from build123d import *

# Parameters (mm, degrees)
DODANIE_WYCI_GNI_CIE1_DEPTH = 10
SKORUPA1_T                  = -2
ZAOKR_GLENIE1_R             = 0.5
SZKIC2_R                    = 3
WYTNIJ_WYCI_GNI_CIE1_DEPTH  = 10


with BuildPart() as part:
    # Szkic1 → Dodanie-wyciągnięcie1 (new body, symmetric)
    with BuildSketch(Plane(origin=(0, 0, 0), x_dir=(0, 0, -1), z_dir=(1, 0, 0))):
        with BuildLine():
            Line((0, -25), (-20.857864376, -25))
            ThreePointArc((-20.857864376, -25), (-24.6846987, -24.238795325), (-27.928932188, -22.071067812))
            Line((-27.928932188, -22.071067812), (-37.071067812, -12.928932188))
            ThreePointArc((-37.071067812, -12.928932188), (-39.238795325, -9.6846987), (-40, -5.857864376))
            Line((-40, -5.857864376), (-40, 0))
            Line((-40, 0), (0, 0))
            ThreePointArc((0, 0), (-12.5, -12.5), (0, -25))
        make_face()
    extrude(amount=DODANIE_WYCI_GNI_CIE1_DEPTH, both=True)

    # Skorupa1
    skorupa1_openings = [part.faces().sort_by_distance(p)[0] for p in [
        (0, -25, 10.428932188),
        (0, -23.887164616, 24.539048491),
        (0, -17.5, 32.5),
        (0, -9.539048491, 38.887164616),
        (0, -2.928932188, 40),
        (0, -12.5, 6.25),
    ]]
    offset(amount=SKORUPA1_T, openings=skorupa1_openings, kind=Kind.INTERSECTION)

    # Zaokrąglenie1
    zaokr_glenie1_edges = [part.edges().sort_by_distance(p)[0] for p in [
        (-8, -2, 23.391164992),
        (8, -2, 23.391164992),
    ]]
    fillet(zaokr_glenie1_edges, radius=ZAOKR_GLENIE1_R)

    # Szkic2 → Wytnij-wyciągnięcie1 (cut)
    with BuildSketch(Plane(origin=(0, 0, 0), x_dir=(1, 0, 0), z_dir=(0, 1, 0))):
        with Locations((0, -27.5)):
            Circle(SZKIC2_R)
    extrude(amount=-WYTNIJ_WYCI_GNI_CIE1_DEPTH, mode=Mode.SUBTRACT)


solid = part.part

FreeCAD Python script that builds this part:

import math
import FreeCAD as App
import Part
import Sketcher
Q = App.Units.Quantity


def edges_at(feature, points):
    """Names of the edges that pass closest to the given points."""
    edges = feature.Shape.Edges
    near = lambda p: min(range(len(edges)), key=lambda i: edges[i].distToShape(Part.Vertex(*p))[0])
    return sorted({f"Edge{near(p) + 1}" for p in points})


def faces_at(feature, points):
    """Names of the faces that lie closest to the given points."""
    faces = feature.Shape.Faces
    near = lambda p: min(range(len(faces)), key=lambda i: faces[i].distToShape(Part.Vertex(*p))[0])
    return sorted({f"Face{near(p) + 1}" for p in points})

doc = App.newDocument("Part")
body = doc.addObject("PartDesign::Body", "Body")

# Sketch on YZ plane
sketch1 = doc.addObject("Sketcher::SketchObject", "Sketch")
body.addObject(sketch1)
sketch1.AttachmentSupport = (doc.YZ_Plane, [""])
sketch1.MapMode = "FlatFace"
sketch1.addGeometry([
    Part.LineSegment(App.Vector(-25, 21, 0), App.Vector(-25, 0, 0)),  # 0
    Part.ArcOfCircle(Part.Circle(App.Vector(-12, 0, 0), App.Vector(0, 0, 1), 12), math.radians(0), math.radians(180)),  # 1
    Part.LineSegment(App.Vector(0, 0, 0), App.Vector(0, 40, 0)),  # 2
    Part.LineSegment(App.Vector(0, 40, 0), App.Vector(-6, 40, 0)),  # 3
    Part.ArcOfCircle(Part.Circle(App.Vector(-6, 30, 0), App.Vector(0, 0, 1), 10), math.radians(90), math.radians(135)),  # 4
    Part.LineSegment(App.Vector(-13, 37, 0), App.Vector(-22, 28, 0)),  # 5
    Part.ArcOfCircle(Part.Circle(App.Vector(-15, 21, 0), App.Vector(0, 0, 1), 10), math.radians(135), math.radians(180)),  # 6
], False)
sketch1.addConstraint([
    Sketcher.Constraint("Tangent", 0, 2, 1, 2),
    Sketcher.Constraint("Tangent", 1, 1, 2, 1),
    Sketcher.Constraint("Coincident", 2, 2, 3, 1),
    Sketcher.Constraint("Tangent", 3, 2, 4, 1),
    Sketcher.Constraint("Tangent", 4, 2, 5, 1),
    Sketcher.Constraint("Tangent", 5, 2, 6, 1),
    Sketcher.Constraint("Tangent", 6, 2, 0, 1),
    Sketcher.Constraint("Vertical", 0),
    Sketcher.Constraint("Vertical", 2),
    Sketcher.Constraint("Horizontal", 3),
    Sketcher.Constraint("Coincident", 1, 1, -1, 1),
    Sketcher.Constraint("Equal", 4, 6),
    Sketcher.Constraint("Radius", 4, 10.0),
    Sketcher.Constraint("Radius", 1, 12.5),
    Sketcher.Constraint("DistanceY", 2, 1, 2, 2, 40.0),
    Sketcher.Constraint("Angle", 5, Q("-135 deg")),
    Sketcher.Constraint("DistanceX", 3, 2, 3, 1, 5.857864),
])
pad1 = doc.addObject("PartDesign::Pad", "Pad")
body.addObject(pad1)
pad1.Profile = sketch1
pad1.Length = 20
pad1.Midplane = True
doc.recompute()

thickness = doc.addObject("PartDesign::Thickness", "Thickness")
body.addObject(thickness)
thickness.Base = (pad1, faces_at(pad1, [
    (0, -25, 10.429),
    (0, -24.239, 24.685),
    (0, -17.5, 32.5),
    (0, -9.685, 39.239),
    (0, -2.929, 40),
    (0, -12.5, 12.5),
]))
thickness.Value = 2
thickness.Reversed = True
thickness.Join = "Intersection"
doc.recompute()

fillet = doc.addObject("PartDesign::Fillet", "Fillet")
body.addObject(fillet)
fillet.Base = (thickness, edges_at(thickness, [(-8, -2, 23.391), (8, -2, 23.391)]))
fillet.Radius = 0.5

# Sketch on XZ plane
sketch2 = doc.addObject("Sketcher::SketchObject", "Sketch001")
body.addObject(sketch2)
sketch2.AttachmentSupport = (doc.XZ_Plane, [""])
sketch2.MapMode = "FlatFace"
sketch2.addGeometry(Part.Circle(App.Vector(0, 27.5, 0), App.Vector(0, 0, 1), 3), False)
sketch2.addConstraint([
    Sketcher.Constraint("PointOnObject", 0, 3, -2),
    Sketcher.Constraint("Diameter", 0, 6.0),
    Sketcher.Constraint("DistanceY", -1, 1, 0, 3, 27.5),
])
pocket1 = doc.addObject("PartDesign::Pocket", "Pocket")
body.addObject(pocket1)
pocket1.Profile = sketch2
pocket1.Length = 10
pocket1.Reversed = True

doc.recompute()
